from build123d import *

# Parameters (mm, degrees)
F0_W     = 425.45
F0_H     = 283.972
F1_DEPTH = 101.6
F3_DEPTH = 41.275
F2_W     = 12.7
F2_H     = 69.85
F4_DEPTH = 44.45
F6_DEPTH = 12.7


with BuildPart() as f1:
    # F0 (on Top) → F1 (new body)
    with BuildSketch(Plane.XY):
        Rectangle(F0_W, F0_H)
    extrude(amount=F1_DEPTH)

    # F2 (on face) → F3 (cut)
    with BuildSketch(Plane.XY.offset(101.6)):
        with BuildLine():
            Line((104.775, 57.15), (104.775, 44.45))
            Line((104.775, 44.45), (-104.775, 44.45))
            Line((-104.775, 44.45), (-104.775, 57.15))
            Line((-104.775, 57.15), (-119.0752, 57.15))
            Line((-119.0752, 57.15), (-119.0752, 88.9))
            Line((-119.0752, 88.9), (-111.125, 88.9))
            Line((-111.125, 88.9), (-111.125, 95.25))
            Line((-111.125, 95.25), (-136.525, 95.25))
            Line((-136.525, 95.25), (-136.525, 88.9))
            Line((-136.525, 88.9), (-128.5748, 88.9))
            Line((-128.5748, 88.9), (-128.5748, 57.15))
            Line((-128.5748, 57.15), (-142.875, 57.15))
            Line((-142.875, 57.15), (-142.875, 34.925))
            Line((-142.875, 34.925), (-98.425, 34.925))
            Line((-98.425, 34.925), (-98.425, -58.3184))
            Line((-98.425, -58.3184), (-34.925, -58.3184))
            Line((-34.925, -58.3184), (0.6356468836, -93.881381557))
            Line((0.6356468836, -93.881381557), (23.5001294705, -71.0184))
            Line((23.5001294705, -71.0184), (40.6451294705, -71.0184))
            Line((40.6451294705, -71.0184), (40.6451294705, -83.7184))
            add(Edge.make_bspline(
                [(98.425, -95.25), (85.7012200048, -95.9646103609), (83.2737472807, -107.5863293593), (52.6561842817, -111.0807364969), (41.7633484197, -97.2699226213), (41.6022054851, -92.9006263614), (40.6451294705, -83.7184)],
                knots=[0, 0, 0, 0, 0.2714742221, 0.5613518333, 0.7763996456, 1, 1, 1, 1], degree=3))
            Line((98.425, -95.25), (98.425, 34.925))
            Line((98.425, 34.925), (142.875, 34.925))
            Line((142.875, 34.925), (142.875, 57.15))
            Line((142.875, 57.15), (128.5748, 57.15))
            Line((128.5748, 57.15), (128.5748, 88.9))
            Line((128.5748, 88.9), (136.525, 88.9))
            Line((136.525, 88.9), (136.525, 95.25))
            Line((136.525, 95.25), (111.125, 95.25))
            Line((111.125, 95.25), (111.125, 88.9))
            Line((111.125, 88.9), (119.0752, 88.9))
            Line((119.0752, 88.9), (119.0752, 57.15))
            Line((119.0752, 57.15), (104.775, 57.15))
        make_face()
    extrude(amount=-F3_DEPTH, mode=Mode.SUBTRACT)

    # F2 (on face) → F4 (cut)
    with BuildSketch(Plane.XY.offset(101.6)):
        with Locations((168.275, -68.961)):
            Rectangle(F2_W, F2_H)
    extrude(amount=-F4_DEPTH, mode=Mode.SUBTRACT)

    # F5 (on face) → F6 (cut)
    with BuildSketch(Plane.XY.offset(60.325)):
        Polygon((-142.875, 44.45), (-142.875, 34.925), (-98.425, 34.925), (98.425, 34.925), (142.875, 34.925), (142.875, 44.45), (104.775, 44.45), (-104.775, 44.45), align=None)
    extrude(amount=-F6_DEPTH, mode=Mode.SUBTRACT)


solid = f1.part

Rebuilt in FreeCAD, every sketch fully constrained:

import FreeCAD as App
import Part
import Sketcher

V = App.Vector
Q = App.Units.Quantity

doc = App.newDocument("Part")
body = doc.addObject("PartDesign::Body", "Body")

# Sketch on XY plane
sketch1 = body.newObject("Sketcher::SketchObject", "Sketch")
sketch1.AttachmentSupport = (doc.getObject("XY_Plane"), [""])
sketch1.MapMode = "FlatFace"
sketch1.addGeometry([
    Part.LineSegment(V(-212.725, 141.986, 0), V(-212.725, -141.986, 0)),
    Part.LineSegment(V(-212.725, -141.986, 0), V(212.725, -141.986, 0)),
    Part.LineSegment(V(212.725, -141.986, 0), V(212.725, 141.986, 0)),
    Part.LineSegment(V(212.725, 141.986, 0), V(-212.725, 141.986, 0)),
], False)
sketch1.addConstraint([
    Sketcher.Constraint("Coincident", 0, 2, 1, 1),
    Sketcher.Constraint("Coincident", 1, 2, 2, 1),
    Sketcher.Constraint("Coincident", 2, 2, 3, 1),
    Sketcher.Constraint("Coincident", 3, 2, 0, 1),
    Sketcher.Constraint("Vertical", 0),
    Sketcher.Constraint("Horizontal", 1),
    Sketcher.Constraint("Vertical", 2),
    Sketcher.Constraint("Horizontal", 3),
    Sketcher.Constraint("Symmetric", 0, 2, 2, 2, -1, 1),
    Sketcher.Constraint("DistanceX", 1, 1, 1, 2, Q("16.75 in")),
    Sketcher.Constraint("DistanceY", 0, 2, 0, 1, Q("11.18 in")),
])
pad1 = body.newObject("PartDesign::Pad", "Pad")
pad1.Profile = sketch1
pad1.Length = Q("4 in")

# Sketch on XY plane
sketch2 = body.newObject("Sketcher::SketchObject", "Sketch001")
sketch2.AttachmentSupport = (doc.getObject("XY_Plane"), [""])
sketch2.MapMode = "FlatFace"
sketch2.AttachmentOffset = App.Placement(V(0, 0, 4 * 25.4), App.Rotation())
sketch2.addGeometry([
    Part.LineSegment(V(104.775, 57.15, 0), V(104.775, 44.45, 0)),  # 0
    Part.LineSegment(V(104.775, 44.45, 0), V(-104.775, 44.45, 0)),  # 1
    Part.LineSegment(V(-104.775, 44.45, 0), V(-104.775, 57.15, 0)),  # 2
    Part.LineSegment(V(-104.775, 57.15, 0), V(-119.0752, 57.15, 0)),  # 3
    Part.LineSegment(V(-119.0752, 57.15, 0), V(-119.0752, 88.9, 0)),  # 4
    Part.LineSegment(V(-119.0752, 88.9, 0), V(-111.125, 88.9, 0)),  # 5
    Part.LineSegment(V(-111.125, 88.9, 0), V(-111.125, 95.25, 0)),  # 6
    Part.LineSegment(V(-111.125, 95.25, 0), V(-136.525, 95.25, 0)),  # 7
    Part.LineSegment(V(-136.525, 95.25, 0), V(-136.525, 88.9, 0)),  # 8
    Part.LineSegment(V(-136.525, 88.9, 0), V(-128.5748, 88.9, 0)),  # 9
    Part.LineSegment(V(-128.5748, 88.9, 0), V(-128.5748, 57.15, 0)),  # 10
    Part.LineSegment(V(-128.5748, 57.15, 0), V(-142.875, 57.15, 0)),  # 11
    Part.LineSegment(V(-142.875, 57.15, 0), V(-142.875, 34.925, 0)),  # 12
    Part.LineSegment(V(-142.875, 34.925, 0), V(-98.425, 34.925, 0)),  # 13
    Part.LineSegment(V(-98.425, 34.925, 0), V(-98.425, -58.3184, 0)),  # 14
    Part.LineSegment(V(-98.425, -58.3184, 0), V(-34.925, -58.3184, 0)),  # 15
    Part.LineSegment(V(-34.925, -58.3184, 0), V(0.635647, -93.881382, 0)),  # 16
    Part.LineSegment(V(0.635647, -93.881382, 0), V(23.500129, -71.0184, 0)),  # 17
    Part.LineSegment(V(23.500129, -71.0184, 0), V(40.645129, -71.0184, 0)),  # 18
    Part.LineSegment(V(40.645129, -71.0184, 0), V(40.645129, -83.7184, 0)),  # 19
    Part.BSplineCurve([V(98.425, -95.25, 0), V(85.70122, -95.96461, 0), V(83.273747, -107.586329, 0), V(52.656184, -111.080736, 0), V(41.763348, -97.269923, 0), V(41.602205, -92.900626, 0), V(40.645129, -83.7184, 0)], [4, 1, 1, 1, 4], [0, 0.271474222, 0.561351833, 0.776399646, 1], False, 3, [1, 1, 1, 1, 1, 1, 1], False),  # 20
    Part.LineSegment(V(98.425, -95.25, 0), V(98.425, 34.925, 0)),  # 21
    Part.LineSegment(V(98.425, 34.925, 0), V(142.875, 34.925, 0)),  # 22
    Part.LineSegment(V(142.875, 34.925, 0), V(142.875, 57.15, 0)),  # 23
    Part.LineSegment(V(142.875, 57.15, 0), V(128.5748, 57.15, 0)),  # 24
    Part.LineSegment(V(128.5748, 57.15, 0), V(128.5748, 88.9, 0)),  # 25
    Part.LineSegment(V(128.5748, 88.9, 0), V(136.525, 88.9, 0)),  # 26
    Part.LineSegment(V(136.525, 88.9, 0), V(136.525, 95.25, 0)),  # 27
    Part.LineSegment(V(136.525, 95.25, 0), V(111.125, 95.25, 0)),  # 28
    Part.LineSegment(V(111.125, 95.25, 0), V(111.125, 88.9, 0)),  # 29
    Part.LineSegment(V(111.125, 88.9, 0), V(119.0752, 88.9, 0)),  # 30
    Part.LineSegment(V(119.0752, 88.9, 0), V(119.0752, 57.15, 0)),  # 31
    Part.LineSegment(V(119.0752, 57.15, 0), V(104.775, 57.15, 0)),  # 32
], False)
sketch2.addConstraint([
    Sketcher.Constraint("Block", 20),
    Sketcher.Constraint("Coincident", 0, 2, 1, 1),
    Sketcher.Constraint("Coincident", 1, 2, 2, 1),
    Sketcher.Constraint("Coincident", 2, 2, 3, 1),
    Sketcher.Constraint("Coincident", 3, 2, 4, 1),
    Sketcher.Constraint("Coincident", 4, 2, 5, 1),
    Sketcher.Constraint("Coincident", 5, 2, 6, 1),
    Sketcher.Constraint("Coincident", 6, 2, 7, 1),
    Sketcher.Constraint("Coincident", 7, 2, 8, 1),
    Sketcher.Constraint("Coincident", 8, 2, 9, 1),
    Sketcher.Constraint("Coincident", 9, 2, 10, 1),
    Sketcher.Constraint("Coincident", 10, 2, 11, 1),
    Sketcher.Constraint("Coincident", 11, 2, 12, 1),
    Sketcher.Constraint("Coincident", 12, 2, 13, 1),
    Sketcher.Constraint("Coincident", 13, 2, 14, 1),
    Sketcher.Constraint("Coincident", 14, 2, 15, 1),
    Sketcher.Constraint("Coincident", 15, 2, 16, 1),
    Sketcher.Constraint("Coincident", 16, 2, 17, 1),
    Sketcher.Constraint("Coincident", 17, 2, 18, 1),
    Sketcher.Constraint("Coincident", 18, 2, 19, 1),
    Sketcher.Constraint("Coincident", 19, 2, 20, 2),
    Sketcher.Constraint("Coincident", 20, 1, 21, 1),
    Sketcher.Constraint("Coincident", 21, 2, 22, 1),
    Sketcher.Constraint("Coincident", 22, 2, 23, 1),
    Sketcher.Constraint("Coincident", 23, 2, 24, 1),
    Sketcher.Constraint("Coincident", 24, 2, 25, 1),
    Sketcher.Constraint("Coincident", 25, 2, 26, 1),
    Sketcher.Constraint("Coincident", 26, 2, 27, 1),
    Sketcher.Constraint("Coincident", 27, 2, 28, 1),
    Sketcher.Constraint("Coincident", 28, 2, 29, 1),
    Sketcher.Constraint("Coincident", 29, 2, 30, 1),
    Sketcher.Constraint("Coincident", 30, 2, 31, 1),
    Sketcher.Constraint("Coincident", 31, 2, 32, 1),
    Sketcher.Constraint("Coincident", 32, 2, 0, 1),
    Sketcher.Constraint("Vertical", 0),
    Sketcher.Constraint("Horizontal", 1),
    Sketcher.Constraint("Vertical", 2),
    Sketcher.Constraint("Horizontal", 3),
    Sketcher.Constraint("Vertical", 4),
    Sketcher.Constraint("Horizontal", 5),
    Sketcher.Constraint("Vertical", 6),
    Sketcher.Constraint("Horizontal", 7),
    Sketcher.Constraint("Vertical", 8),
    Sketcher.Constraint("Horizontal", 9),
    Sketcher.Constraint("Vertical", 10),
    Sketcher.Constraint("Horizontal", 11),
    Sketcher.Constraint("Vertical", 12),
    Sketcher.Constraint("Horizontal", 13),
    Sketcher.Constraint("Vertical", 14),
    Sketcher.Constraint("Horizontal", 15),
    Sketcher.Constraint("Horizontal", 18),
    Sketcher.Constraint("Vertical", 19),
    Sketcher.Constraint("Vertical", 21),
    Sketcher.Constraint("Horizontal", 22),
    Sketcher.Constraint("Vertical", 23),
    Sketcher.Constraint("Horizontal", 24),
    Sketcher.Constraint("Vertical", 25),
    Sketcher.Constraint("Horizontal", 26),
    Sketcher.Constraint("Vertical", 27),
    Sketcher.Constraint("Horizontal", 28),
    Sketcher.Constraint("Vertical", 29),
    Sketcher.Constraint("Horizontal", 30),
    Sketcher.Constraint("Vertical", 31),
    Sketcher.Constraint("Horizontal", 32),
    Sketcher.Constraint("DistanceX", 7, 2, 7, 1, Q("1 in")),
    Sketcher.Constraint("DistanceX", 28, 2, 28, 1, Q("1 in")),
    Sketcher.Constraint("DistanceX", 15, 1, 15, 2, Q("2.5 in")),
    Sketcher.Constraint("DistanceY", 0, 2, 0, 1, Q("0.5 in")),
    Sketcher.Constraint("DistanceY", 2, 1, 2, 2, Q("0.5 in")),
    Sketcher.Constraint("DistanceY", 19, 2, 19, 1, Q("0.5 in")),
    Sketcher.Constraint("DistanceY", 1, 2, 6, 2, Q("2 in")),
    Sketcher.Constraint("DistanceY", 19, 2, 15, 2, Q("1 in")),
    Sketcher.Constraint("DistanceY", 0, 2, 27, 2, Q("2 in")),
    Sketcher.Constraint("DistanceX", 1, 2, 1, 1, Q("8.25 in")),
    Sketcher.Constraint("DistanceX", 13, 1, 13, 2, Q("1.75 in")),
    Sketcher.Constraint("DistanceX", 22, 1, 22, 2, Q("1.75 in")),
    Sketcher.Constraint("DistanceY", 4, 1, 4, 2, Q("1.25 in")),
    Sketcher.Constraint("DistanceY", 8, 2, 8, 1, Q("0.25 in")),
    Sketcher.Constraint("DistanceY", 10, 2, 10, 1, Q("1.25 in")),
    Sketcher.Constraint("DistanceY", 25, 1, 25, 2, Q("1.25 in")),
    Sketcher.Constraint("DistanceY", 27, 1, 27, 2, Q("0.25 in")),
    Sketcher.Constraint("DistanceY", 29, 2, 29, 1, Q("0.25 in")),
    Sketcher.Constraint("DistanceY", -1, 1, 4, 2, Q("3.5 in")),
    Sketcher.Constraint("DistanceX", 5, 2, 0, 2, Q("8.5 in")),
    Sketcher.Constraint("DistanceX", 11, 2, 2, 2, Q("1.5 in")),
    Sketcher.Constraint("DistanceX", 0, 2, 22, 2, Q("1.5 in")),
    Sketcher.Constraint("Distance", 16, Q("1.98 in")),
    Sketcher.Constraint("DistanceX", 3, 2, 3, 1, Q("0.563 in")),
    Sketcher.Constraint("DistanceX", 9, 1, 9, 2, Q("0.313 in")),
    Sketcher.Constraint("DistanceX", 18, 1, 18, 2, Q("0.675 in")),
    Sketcher.Constraint("DistanceX", 24, 2, 24, 1, Q("0.563 in")),
    Sketcher.Constraint("DistanceX", 26, 1, 26, 2, Q("0.313 in")),
    Sketcher.Constraint("DistanceX", 30, 1, 30, 2, Q("0.313 in")),
    Sketcher.Constraint("DistanceY", 12, 2, 12, 1, Q("0.875 in")),
    Sketcher.Constraint("DistanceY", 21, 1, 21, 2, Q("5.125 in")),
    Sketcher.Constraint("Distance", 17, Q("1.273 in")),
])
pocket1 = body.newObject("PartDesign::Pocket", "Pocket")
pocket1.Profile = sketch2
pocket1.Length = Q("1.625 in")

# Sketch on XY plane
sketch3 = body.newObject("Sketcher::SketchObject", "Sketch002")
sketch3.AttachmentSupport = (doc.getObject("XY_Plane"), [""])
sketch3.MapMode = "FlatFace"
sketch3.AttachmentOffset = App.Placement(V(0, 0, 4 * 25.4), App.Rotation())
sketch3.addGeometry([
    Part.LineSegment(V(161.925, -34.036, 0), V(161.925, -103.886, 0)),
    Part.LineSegment(V(161.925, -103.886, 0), V(174.625, -103.886, 0)),
    Part.LineSegment(V(174.625, -103.886, 0), V(174.625, -34.036, 0)),
    Part.LineSegment(V(174.625, -34.036, 0), V(161.925, -34.036, 0)),
], False)
sketch3.addConstraint([
    Sketcher.Constraint("Coincident", 0, 2, 1, 1),
    Sketcher.Constraint("Coincident", 1, 2, 2, 1),
    Sketcher.Constraint("Coincident", 2, 2, 3, 1),
    Sketcher.Constraint("Coincident", 3, 2, 0, 1),
    Sketcher.Constraint("Vertical", 0),
    Sketcher.Constraint("Horizontal", 1),
    Sketcher.Constraint("Vertical", 2),
    Sketcher.Constraint("Horizontal", 3),
    Sketcher.Constraint("DistanceX", 1, 1, 1, 2, Q("0.5 in")),
    Sketcher.Constraint("DistanceY", 0, 2, 0, 1, Q("2.75 in")),
    Sketcher.Constraint("DistanceY", 0, 2, -1, 1, Q("4.09 in")),
    Sketcher.Constraint("DistanceX", -1, 1, 0, 2, Q("6.375 in")),
])
pocket2 = body.newObject("PartDesign::Pocket", "Pocket001")
pocket2.Profile = sketch3
pocket2.Length = Q("1.75 in")

# Sketch on XY plane
sketch4 = body.newObject("Sketcher::SketchObject", "Sketch003")
sketch4.AttachmentSupport = (doc.getObject("XY_Plane"), [""])
sketch4.MapMode = "FlatFace"
sketch4.AttachmentOffset = App.Placement(V(0, 0, 2.375 * 25.4), App.Rotation())
sketch4.addGeometry([
    Part.LineSegment(V(-142.875, 44.45, 0), V(-142.875, 34.925, 0)),
    Part.LineSegment(V(-142.875, 34.925, 0), V(142.875, 34.925, 0)),
    Part.LineSegment(V(142.875, 34.925, 0), V(142.875, 44.45, 0)),
    Part.LineSegment(V(142.875, 44.45, 0), V(-142.875, 44.45, 0)),
], False)
sketch4.addConstraint([
    Sketcher.Constraint("Coincident", 0, 2, 1, 1),
    Sketcher.Constraint("Coincident", 1, 2, 2, 1),
    Sketcher.Constraint("Coincident", 2, 2, 3, 1),
    Sketcher.Constraint("Coincident", 3, 2, 0, 1),
    Sketcher.Constraint("Vertical", 0),
    Sketcher.Constraint("Horizontal", 1),
    Sketcher.Constraint("Vertical", 2),
    Sketcher.Constraint("Horizontal", 3),
    Sketcher.Constraint("DistanceX", 1, 1, 1, 2, Q("11.25 in")),
    Sketcher.Constraint("DistanceY", 0, 2, 0, 1, Q("0.375 in")),
    Sketcher.Constraint("DistanceY", -1, 1, 2, 2, Q("1.75 in")),
    Sketcher.Constraint("DistanceX", 0, 2, -1, 1, Q("5.625 in")),
])
pocket3 = body.newObject("PartDesign::Pocket", "Pocket002")
pocket3.Profile = sketch4
pocket3.Length = Q("0.5 in")

doc.recompute()
